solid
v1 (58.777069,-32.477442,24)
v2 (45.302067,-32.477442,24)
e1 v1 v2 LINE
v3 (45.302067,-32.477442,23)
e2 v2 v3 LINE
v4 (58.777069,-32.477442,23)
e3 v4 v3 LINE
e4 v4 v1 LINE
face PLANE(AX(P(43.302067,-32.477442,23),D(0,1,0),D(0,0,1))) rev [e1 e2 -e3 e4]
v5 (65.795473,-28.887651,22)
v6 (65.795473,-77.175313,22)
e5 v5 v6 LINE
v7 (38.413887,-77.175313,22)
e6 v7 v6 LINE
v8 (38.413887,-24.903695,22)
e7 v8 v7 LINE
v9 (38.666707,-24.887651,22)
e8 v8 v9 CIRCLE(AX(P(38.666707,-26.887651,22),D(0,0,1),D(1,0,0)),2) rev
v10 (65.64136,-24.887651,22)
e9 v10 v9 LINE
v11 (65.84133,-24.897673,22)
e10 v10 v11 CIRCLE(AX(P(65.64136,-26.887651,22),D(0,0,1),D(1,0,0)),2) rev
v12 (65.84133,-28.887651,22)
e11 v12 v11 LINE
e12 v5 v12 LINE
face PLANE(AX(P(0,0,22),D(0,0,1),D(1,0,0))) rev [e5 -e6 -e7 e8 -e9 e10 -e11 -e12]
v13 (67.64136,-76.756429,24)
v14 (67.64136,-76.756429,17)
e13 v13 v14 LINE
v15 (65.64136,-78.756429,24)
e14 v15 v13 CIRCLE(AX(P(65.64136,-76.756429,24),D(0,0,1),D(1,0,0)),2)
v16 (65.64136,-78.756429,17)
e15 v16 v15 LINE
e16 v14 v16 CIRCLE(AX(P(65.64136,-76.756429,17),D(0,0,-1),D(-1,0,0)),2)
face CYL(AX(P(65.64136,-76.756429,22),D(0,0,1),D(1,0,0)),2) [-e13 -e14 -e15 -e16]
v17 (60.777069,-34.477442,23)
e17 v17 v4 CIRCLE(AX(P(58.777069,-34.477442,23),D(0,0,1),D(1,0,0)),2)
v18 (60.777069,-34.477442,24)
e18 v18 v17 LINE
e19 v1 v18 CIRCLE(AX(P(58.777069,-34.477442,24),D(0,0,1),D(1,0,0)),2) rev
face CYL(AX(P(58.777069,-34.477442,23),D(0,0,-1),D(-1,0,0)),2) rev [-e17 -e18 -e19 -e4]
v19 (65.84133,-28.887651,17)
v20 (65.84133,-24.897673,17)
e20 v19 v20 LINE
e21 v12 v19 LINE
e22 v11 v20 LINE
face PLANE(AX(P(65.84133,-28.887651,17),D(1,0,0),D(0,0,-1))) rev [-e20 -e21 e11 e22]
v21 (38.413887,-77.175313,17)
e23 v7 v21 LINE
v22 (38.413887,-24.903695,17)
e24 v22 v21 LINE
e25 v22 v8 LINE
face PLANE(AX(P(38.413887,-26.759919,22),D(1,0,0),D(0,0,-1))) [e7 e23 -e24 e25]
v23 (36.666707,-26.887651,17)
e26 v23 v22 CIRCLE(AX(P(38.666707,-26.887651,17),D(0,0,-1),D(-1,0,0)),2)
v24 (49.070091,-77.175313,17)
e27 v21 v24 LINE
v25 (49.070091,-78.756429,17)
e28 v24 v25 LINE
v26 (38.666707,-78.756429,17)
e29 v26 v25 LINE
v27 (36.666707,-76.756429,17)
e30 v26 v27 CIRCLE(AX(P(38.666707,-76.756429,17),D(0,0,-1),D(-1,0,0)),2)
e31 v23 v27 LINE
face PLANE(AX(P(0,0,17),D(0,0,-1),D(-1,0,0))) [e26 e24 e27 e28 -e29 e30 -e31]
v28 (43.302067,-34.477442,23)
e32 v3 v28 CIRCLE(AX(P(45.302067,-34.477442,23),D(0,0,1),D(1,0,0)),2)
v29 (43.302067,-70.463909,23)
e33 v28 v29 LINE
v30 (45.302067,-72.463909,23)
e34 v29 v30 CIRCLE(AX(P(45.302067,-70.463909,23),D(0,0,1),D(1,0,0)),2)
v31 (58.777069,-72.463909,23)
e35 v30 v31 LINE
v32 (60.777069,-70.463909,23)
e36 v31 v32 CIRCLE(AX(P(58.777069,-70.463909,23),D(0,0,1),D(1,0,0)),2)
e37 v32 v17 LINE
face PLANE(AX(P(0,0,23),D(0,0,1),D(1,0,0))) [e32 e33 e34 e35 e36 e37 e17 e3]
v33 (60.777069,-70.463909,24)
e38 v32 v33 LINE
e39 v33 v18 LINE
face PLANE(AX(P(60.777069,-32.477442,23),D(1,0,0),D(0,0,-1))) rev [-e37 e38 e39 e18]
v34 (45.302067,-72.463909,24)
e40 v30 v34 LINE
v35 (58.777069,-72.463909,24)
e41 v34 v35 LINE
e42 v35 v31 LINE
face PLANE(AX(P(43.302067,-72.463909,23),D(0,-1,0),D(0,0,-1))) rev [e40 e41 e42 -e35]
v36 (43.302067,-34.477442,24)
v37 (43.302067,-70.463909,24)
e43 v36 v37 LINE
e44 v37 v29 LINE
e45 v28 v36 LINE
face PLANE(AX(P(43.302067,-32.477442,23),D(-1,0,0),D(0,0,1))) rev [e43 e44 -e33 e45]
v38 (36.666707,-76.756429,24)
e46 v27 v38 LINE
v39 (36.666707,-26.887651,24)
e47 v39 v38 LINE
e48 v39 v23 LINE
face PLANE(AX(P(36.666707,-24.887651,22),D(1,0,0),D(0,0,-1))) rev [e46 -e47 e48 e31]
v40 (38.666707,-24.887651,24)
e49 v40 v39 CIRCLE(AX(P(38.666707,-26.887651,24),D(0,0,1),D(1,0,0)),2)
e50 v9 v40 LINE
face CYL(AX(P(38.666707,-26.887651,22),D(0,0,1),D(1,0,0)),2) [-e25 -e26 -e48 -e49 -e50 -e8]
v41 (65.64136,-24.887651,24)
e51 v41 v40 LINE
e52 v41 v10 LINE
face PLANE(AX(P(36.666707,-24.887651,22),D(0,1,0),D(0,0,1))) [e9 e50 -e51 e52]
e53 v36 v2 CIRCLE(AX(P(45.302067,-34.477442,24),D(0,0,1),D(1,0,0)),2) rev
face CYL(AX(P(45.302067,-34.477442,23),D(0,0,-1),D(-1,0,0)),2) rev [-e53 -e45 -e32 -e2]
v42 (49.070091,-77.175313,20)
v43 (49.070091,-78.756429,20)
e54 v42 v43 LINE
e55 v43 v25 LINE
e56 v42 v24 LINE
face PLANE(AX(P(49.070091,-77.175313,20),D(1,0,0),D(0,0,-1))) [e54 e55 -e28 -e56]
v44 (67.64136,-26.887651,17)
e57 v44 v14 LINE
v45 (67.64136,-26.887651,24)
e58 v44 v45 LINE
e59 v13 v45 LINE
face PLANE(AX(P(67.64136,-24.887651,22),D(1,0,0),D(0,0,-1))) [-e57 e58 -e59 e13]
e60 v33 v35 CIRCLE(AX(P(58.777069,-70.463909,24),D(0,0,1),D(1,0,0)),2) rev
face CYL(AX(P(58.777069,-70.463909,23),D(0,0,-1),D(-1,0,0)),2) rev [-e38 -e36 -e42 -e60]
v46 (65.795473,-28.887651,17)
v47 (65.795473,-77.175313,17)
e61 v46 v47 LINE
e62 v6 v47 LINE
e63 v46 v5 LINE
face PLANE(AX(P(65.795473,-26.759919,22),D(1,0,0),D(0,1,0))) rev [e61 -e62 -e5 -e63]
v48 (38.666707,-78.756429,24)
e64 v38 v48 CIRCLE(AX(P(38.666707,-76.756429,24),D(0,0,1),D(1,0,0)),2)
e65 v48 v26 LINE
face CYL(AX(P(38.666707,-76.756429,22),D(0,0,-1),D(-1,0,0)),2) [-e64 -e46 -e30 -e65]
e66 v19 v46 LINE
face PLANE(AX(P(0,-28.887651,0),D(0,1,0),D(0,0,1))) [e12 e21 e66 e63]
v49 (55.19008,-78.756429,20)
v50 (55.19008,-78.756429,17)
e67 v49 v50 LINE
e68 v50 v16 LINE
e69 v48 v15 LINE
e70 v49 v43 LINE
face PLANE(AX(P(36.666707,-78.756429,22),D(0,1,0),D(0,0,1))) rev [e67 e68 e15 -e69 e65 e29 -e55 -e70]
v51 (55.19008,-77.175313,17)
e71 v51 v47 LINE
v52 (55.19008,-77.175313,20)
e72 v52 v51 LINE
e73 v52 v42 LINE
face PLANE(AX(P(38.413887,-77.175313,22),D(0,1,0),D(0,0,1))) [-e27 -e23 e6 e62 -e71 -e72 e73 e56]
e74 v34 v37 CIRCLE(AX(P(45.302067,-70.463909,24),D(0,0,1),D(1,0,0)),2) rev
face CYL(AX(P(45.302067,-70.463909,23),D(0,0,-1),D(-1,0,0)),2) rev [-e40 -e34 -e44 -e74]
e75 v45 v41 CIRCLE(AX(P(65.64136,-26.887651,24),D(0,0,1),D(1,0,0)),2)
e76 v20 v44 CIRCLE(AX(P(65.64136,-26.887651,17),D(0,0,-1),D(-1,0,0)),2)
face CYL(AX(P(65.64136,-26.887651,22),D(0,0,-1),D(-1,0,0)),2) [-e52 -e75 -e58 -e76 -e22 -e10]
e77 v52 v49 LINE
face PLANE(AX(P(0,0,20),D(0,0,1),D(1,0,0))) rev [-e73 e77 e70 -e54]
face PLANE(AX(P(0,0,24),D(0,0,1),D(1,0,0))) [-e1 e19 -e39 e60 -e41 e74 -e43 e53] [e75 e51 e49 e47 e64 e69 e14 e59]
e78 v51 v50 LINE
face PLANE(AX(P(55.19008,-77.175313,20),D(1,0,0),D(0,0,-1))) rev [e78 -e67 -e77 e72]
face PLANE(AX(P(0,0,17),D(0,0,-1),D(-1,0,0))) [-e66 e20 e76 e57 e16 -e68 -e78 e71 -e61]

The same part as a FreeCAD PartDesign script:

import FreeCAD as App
import Part
import Sketcher
from FreeCAD import Vector
Q = App.Units.Quantity


def edges_at(feature, points):
    """Names of the edges that pass closest to the given points."""
    edges = feature.Shape.Edges
    near = lambda p: min(range(len(edges)), key=lambda i: edges[i].distToShape(Part.Vertex(*p))[0])
    return sorted({f"Edge{near(p) + 1}" for p in points})

doc = App.newDocument("Part")
body = doc.addObject("PartDesign::Body", "Body")

# Sketch on XY plane
sketch1 = body.newObject("Sketcher::SketchObject", "Sketch")
sketch1.AttachmentSupport = (doc.getObject("XY_Plane"), [""])
sketch1.MapMode = "FlatFace"
sketch1.AttachmentOffset = App.Placement(Vector(0, 0, 17), App.Rotation())
sketch1.addGeometry([
    Part.LineSegment(Vector(36.666707, -24.887651, 0), Vector(36.666707, -78.756429, 0)),  # 0
    Part.LineSegment(Vector(36.666707, -78.756429, 0), Vector(67.64136, -78.756429, 0)),  # 1
    Part.LineSegment(Vector(67.64136, -78.756429, 0), Vector(67.64136, -24.887651, 0)),  # 2
    Part.LineSegment(Vector(67.64136, -24.887651, 0), Vector(36.666707, -24.887651, 0)),  # 3
    Part.LineSegment(Vector(65.795473, -77.175313, 0), Vector(38.413887, -77.175313, 0)),  # 4
    Part.LineSegment(Vector(38.413887, -77.175313, 0), Vector(38.413887, -26.759919, 0)),  # 5
    Part.LineSegment(Vector(38.413887, -26.759919, 0), Vector(65.795473, -26.759919, 0)),  # 6
    Part.LineSegment(Vector(65.795473, -26.759919, 0), Vector(65.795473, -77.175313, 0)),  # 7
], False)
sketch1.addConstraint([
    Sketcher.Constraint("Coincident", 0, 2, 1, 1),
    Sketcher.Constraint("Coincident", 1, 2, 2, 1),
    Sketcher.Constraint("Coincident", 2, 2, 3, 1),
    Sketcher.Constraint("Coincident", 3, 2, 0, 1),
    Sketcher.Constraint("Coincident", 4, 2, 5, 1),
    Sketcher.Constraint("Coincident", 5, 2, 6, 1),
    Sketcher.Constraint("Coincident", 6, 2, 7, 1),
    Sketcher.Constraint("Coincident", 7, 2, 4, 1),
    Sketcher.Constraint("Vertical", 0),
    Sketcher.Constraint("Horizontal", 1),
    Sketcher.Constraint("Vertical", 2),
    Sketcher.Constraint("Horizontal", 3),
    Sketcher.Constraint("Horizontal", 4),
    Sketcher.Constraint("Vertical", 5),
    Sketcher.Constraint("Horizontal", 6),
    Sketcher.Constraint("Vertical", 7),
    Sketcher.Constraint("DistanceX", 1, 1, 1, 2, Q("30.974653 mm")),
    Sketcher.Constraint("DistanceX", 4, 2, 4, 1, Q("27.381586 mm")),
    Sketcher.Constraint("DistanceY", 0, 2, 0, 1, Q("53.868777 mm")),
    Sketcher.Constraint("DistanceY", 5, 1, 5, 2, Q("50.415395 mm")),
    Sketcher.Constraint("DistanceY", 0, 2, -1, 1, Q("78.756429 mm")),
    Sketcher.Constraint("DistanceX", -1, 1, 1, 2, Q("67.64136 mm")),
    Sketcher.Constraint("DistanceY", 5, 2, -1, 1, Q("26.759919 mm")),
    Sketcher.Constraint("DistanceX", 0, 2, 4, 2, Q("1.74718 mm")),
])
pad1 = body.newObject("PartDesign::Pad", "Pad")
pad1.Profile = sketch1
pad1.Length = 5

# Sketch on XZ plane
sketch2 = body.newObject("Sketcher::SketchObject", "Sketch001")
sketch2.AttachmentSupport = (doc.getObject("XZ_Plane"), [""])
sketch2.MapMode = "FlatFace"
sketch2.AttachmentOffset = App.Placement(Vector(0, 0, 24.887651), App.Rotation())
sketch2.addGeometry([
    Part.LineSegment(Vector(38.413887, 17, 0), Vector(38.413887, 22, 0)),
    Part.LineSegment(Vector(38.413887, 22, 0), Vector(65.84133, 22, 0)),
    Part.LineSegment(Vector(65.84133, 22, 0), Vector(65.84133, 17, 0)),
    Part.LineSegment(Vector(65.84133, 17, 0), Vector(38.413887, 17, 0)),
], False)
sketch2.addConstraint([
    Sketcher.Constraint("Coincident", 0, 2, 1, 1),
    Sketcher.Constraint("Coincident", 1, 2, 2, 1),
    Sketcher.Constraint("Coincident", 2, 2, 3, 1),
    Sketcher.Constraint("Coincident", 3, 2, 0, 1),
    Sketcher.Constraint("Vertical", 0),
    Sketcher.Constraint("Horizontal", 1),
    Sketcher.Constraint("Vertical", 2),
    Sketcher.Constraint("Horizontal", 3),
    Sketcher.Constraint("DistanceY", 0, 1, 0, 2, Q("5 mm")),
    Sketcher.Constraint("DistanceY", -1, 1, 0, 2, Q("22 mm")),
    Sketcher.Constraint("DistanceX", 1, 1, 1, 2, Q("27.427443 mm")),
    Sketcher.Constraint("DistanceX", -1, 1, 1, 2, Q("65.84133 mm")),
])
pocket1 = body.newObject("PartDesign::Pocket", "Pocket")
pocket1.Profile = sketch2
pocket1.Length = 4
pocket1.Reversed = True

# Sketch on XY plane
sketch3 = body.newObject("Sketcher::SketchObject", "Sketch002")
sketch3.AttachmentSupport = (doc.getObject("XY_Plane"), [""])
sketch3.MapMode = "FlatFace"
sketch3.AttachmentOffset = App.Placement(Vector(0, 0, 17), App.Rotation())
sketch3.addGeometry([
    Part.LineSegment(Vector(55.19008, -77.175313, 0), Vector(55.19008, -78.756429, 0)),
    Part.LineSegment(Vector(55.19008, -78.756429, 0), Vector(49.070091, -78.756429, 0)),
    Part.LineSegment(Vector(49.070091, -78.756429, 0), Vector(49.070091, -77.175313, 0)),
    Part.LineSegment(Vector(49.070091, -77.175313, 0), Vector(55.19008, -77.175313, 0)),
], False)
sketch3.addConstraint([
    Sketcher.Constraint("Coincident", 0, 2, 1, 1),
    Sketcher.Constraint("Coincident", 1, 2, 2, 1),
    Sketcher.Constraint("Coincident", 2, 2, 3, 1),
    Sketcher.Constraint("Coincident", 3, 2, 0, 1),
    Sketcher.Constraint("Vertical", 0),
    Sketcher.Constraint("Horizontal", 1),
    Sketcher.Constraint("Vertical", 2),
    Sketcher.Constraint("Horizontal", 3),
    Sketcher.Constraint("DistanceX", 1, 2, 1, 1, Q("6.119989 mm")),
    Sketcher.Constraint("DistanceY", 0, 2, 0, 1, Q("1.581116 mm")),
    Sketcher.Constraint("DistanceX", -1, 1, 0, 2, Q("55.19008 mm")),
    Sketcher.Constraint("DistanceY", 0, 2, -1, 1, Q("78.756429 mm")),
])
pocket2 = body.newObject("PartDesign::Pocket", "Pocket001")
pocket2.Profile = sketch3
pocket2.Length = 3
pocket2.Reversed = True

# Sketch on XY plane
sketch4 = body.newObject("Sketcher::SketchObject", "Sketch003")
sketch4.AttachmentSupport = (doc.getObject("XY_Plane"), [""])
sketch4.MapMode = "FlatFace"
sketch4.AttachmentOffset = App.Placement(Vector(0, 0, 22), App.Rotation())
sketch4.addGeometry([
    Part.LineSegment(Vector(36.666707, -24.887651, 0), Vector(36.666707, -78.756429, 0)),
    Part.LineSegment(Vector(36.666707, -78.756429, 0), Vector(67.64136, -78.756429, 0)),
    Part.LineSegment(Vector(67.64136, -78.756429, 0), Vector(67.64136, -24.887651, 0)),
    Part.LineSegment(Vector(67.64136, -24.887651, 0), Vector(36.666707, -24.887651, 0)),
], False)
sketch4.addConstraint([
    Sketcher.Constraint("Coincident", 0, 2, 1, 1),
    Sketcher.Constraint("Coincident", 1, 2, 2, 1),
    Sketcher.Constraint("Coincident", 2, 2, 3, 1),
    Sketcher.Constraint("Coincident", 3, 2, 0, 1),
    Sketcher.Constraint("Vertical", 0),
    Sketcher.Constraint("Horizontal", 1),
    Sketcher.Constraint("Vertical", 2),
    Sketcher.Constraint("Horizontal", 3),
    Sketcher.Constraint("DistanceX", 1, 1, 1, 2, Q("30.974653 mm")),
    Sketcher.Constraint("DistanceY", 0, 2, 0, 1, Q("53.868777 mm")),
    Sketcher.Constraint("DistanceY", 0, 2, -1, 1, Q("78.756429 mm")),
    Sketcher.Constraint("DistanceX", -1, 1, 1, 2, Q("67.64136 mm")),
])
pad2 = body.newObject("PartDesign::Pad", "Pad001")
pad2.Profile = sketch4
pad2.Length = 2

# Sketch on XY plane
sketch5 = body.newObject("Sketcher::SketchObject", "Sketch004")
sketch5.AttachmentSupport = (doc.getObject("XY_Plane"), [""])
sketch5.MapMode = "FlatFace"
sketch5.AttachmentOffset = App.Placement(Vector(0, 0, 24), App.Rotation())
sketch5.addGeometry([
    Part.LineSegment(Vector(43.302067, -32.477442, 0), Vector(43.302067, -72.463909, 0)),
    Part.LineSegment(Vector(43.302067, -72.463909, 0), Vector(60.777069, -72.463909, 0)),
    Part.LineSegment(Vector(60.777069, -72.463909, 0), Vector(60.777069, -32.477442, 0)),
    Part.LineSegment(Vector(60.777069, -32.477442, 0), Vector(43.302067, -32.477442, 0)),
], False)
sketch5.addConstraint([
    Sketcher.Constraint("Coincident", 0, 2, 1, 1),
    Sketcher.Constraint("Coincident", 1, 2, 2, 1),
    Sketcher.Constraint("Coincident", 2, 2, 3, 1),
    Sketcher.Constraint("Coincident", 3, 2, 0, 1),
    Sketcher.Constraint("Vertical", 0),
    Sketcher.Constraint("Horizontal", 1),
    Sketcher.Constraint("Vertical", 2),
    Sketcher.Constraint("Horizontal", 3),
    Sketcher.Constraint("DistanceX", 1, 1, 1, 2, Q("17.475002 mm")),
    Sketcher.Constraint("DistanceY", 0, 2, 0, 1, Q("39.986468 mm")),
    Sketcher.Constraint("DistanceY", 0, 2, -1, 1, Q("72.463909 mm")),
    Sketcher.Constraint("DistanceX", -1, 1, 1, 2, Q("60.777069 mm")),
])
pocket3 = body.newObject("PartDesign::Pocket", "Pocket002")
pocket3.Profile = sketch5
pocket3.Length = 1
doc.recompute()

fillet = body.newObject("PartDesign::Fillet", "Fillet")
fillet.Base = (pocket3, edges_at(pocket3, [
    (67.641, -78.756, 20.5),
    (36.667, -78.756, 20.5),
    (36.667, -24.888, 20.5),
    (67.641, -24.888, 20.5),
]))
fillet.Radius = 2
doc.recompute()

fillet2 = body.newObject("PartDesign::Fillet", "Fillet001")
fillet2.Base = (fillet, edges_at(fillet, [
    (43.302, -72.464, 23.5),
    (43.302, -32.477, 23.5),
    (60.777, -32.477, 23.5),
    (60.777, -72.464, 23.5),
]))
fillet2.Radius = 2

doc.recompute()
